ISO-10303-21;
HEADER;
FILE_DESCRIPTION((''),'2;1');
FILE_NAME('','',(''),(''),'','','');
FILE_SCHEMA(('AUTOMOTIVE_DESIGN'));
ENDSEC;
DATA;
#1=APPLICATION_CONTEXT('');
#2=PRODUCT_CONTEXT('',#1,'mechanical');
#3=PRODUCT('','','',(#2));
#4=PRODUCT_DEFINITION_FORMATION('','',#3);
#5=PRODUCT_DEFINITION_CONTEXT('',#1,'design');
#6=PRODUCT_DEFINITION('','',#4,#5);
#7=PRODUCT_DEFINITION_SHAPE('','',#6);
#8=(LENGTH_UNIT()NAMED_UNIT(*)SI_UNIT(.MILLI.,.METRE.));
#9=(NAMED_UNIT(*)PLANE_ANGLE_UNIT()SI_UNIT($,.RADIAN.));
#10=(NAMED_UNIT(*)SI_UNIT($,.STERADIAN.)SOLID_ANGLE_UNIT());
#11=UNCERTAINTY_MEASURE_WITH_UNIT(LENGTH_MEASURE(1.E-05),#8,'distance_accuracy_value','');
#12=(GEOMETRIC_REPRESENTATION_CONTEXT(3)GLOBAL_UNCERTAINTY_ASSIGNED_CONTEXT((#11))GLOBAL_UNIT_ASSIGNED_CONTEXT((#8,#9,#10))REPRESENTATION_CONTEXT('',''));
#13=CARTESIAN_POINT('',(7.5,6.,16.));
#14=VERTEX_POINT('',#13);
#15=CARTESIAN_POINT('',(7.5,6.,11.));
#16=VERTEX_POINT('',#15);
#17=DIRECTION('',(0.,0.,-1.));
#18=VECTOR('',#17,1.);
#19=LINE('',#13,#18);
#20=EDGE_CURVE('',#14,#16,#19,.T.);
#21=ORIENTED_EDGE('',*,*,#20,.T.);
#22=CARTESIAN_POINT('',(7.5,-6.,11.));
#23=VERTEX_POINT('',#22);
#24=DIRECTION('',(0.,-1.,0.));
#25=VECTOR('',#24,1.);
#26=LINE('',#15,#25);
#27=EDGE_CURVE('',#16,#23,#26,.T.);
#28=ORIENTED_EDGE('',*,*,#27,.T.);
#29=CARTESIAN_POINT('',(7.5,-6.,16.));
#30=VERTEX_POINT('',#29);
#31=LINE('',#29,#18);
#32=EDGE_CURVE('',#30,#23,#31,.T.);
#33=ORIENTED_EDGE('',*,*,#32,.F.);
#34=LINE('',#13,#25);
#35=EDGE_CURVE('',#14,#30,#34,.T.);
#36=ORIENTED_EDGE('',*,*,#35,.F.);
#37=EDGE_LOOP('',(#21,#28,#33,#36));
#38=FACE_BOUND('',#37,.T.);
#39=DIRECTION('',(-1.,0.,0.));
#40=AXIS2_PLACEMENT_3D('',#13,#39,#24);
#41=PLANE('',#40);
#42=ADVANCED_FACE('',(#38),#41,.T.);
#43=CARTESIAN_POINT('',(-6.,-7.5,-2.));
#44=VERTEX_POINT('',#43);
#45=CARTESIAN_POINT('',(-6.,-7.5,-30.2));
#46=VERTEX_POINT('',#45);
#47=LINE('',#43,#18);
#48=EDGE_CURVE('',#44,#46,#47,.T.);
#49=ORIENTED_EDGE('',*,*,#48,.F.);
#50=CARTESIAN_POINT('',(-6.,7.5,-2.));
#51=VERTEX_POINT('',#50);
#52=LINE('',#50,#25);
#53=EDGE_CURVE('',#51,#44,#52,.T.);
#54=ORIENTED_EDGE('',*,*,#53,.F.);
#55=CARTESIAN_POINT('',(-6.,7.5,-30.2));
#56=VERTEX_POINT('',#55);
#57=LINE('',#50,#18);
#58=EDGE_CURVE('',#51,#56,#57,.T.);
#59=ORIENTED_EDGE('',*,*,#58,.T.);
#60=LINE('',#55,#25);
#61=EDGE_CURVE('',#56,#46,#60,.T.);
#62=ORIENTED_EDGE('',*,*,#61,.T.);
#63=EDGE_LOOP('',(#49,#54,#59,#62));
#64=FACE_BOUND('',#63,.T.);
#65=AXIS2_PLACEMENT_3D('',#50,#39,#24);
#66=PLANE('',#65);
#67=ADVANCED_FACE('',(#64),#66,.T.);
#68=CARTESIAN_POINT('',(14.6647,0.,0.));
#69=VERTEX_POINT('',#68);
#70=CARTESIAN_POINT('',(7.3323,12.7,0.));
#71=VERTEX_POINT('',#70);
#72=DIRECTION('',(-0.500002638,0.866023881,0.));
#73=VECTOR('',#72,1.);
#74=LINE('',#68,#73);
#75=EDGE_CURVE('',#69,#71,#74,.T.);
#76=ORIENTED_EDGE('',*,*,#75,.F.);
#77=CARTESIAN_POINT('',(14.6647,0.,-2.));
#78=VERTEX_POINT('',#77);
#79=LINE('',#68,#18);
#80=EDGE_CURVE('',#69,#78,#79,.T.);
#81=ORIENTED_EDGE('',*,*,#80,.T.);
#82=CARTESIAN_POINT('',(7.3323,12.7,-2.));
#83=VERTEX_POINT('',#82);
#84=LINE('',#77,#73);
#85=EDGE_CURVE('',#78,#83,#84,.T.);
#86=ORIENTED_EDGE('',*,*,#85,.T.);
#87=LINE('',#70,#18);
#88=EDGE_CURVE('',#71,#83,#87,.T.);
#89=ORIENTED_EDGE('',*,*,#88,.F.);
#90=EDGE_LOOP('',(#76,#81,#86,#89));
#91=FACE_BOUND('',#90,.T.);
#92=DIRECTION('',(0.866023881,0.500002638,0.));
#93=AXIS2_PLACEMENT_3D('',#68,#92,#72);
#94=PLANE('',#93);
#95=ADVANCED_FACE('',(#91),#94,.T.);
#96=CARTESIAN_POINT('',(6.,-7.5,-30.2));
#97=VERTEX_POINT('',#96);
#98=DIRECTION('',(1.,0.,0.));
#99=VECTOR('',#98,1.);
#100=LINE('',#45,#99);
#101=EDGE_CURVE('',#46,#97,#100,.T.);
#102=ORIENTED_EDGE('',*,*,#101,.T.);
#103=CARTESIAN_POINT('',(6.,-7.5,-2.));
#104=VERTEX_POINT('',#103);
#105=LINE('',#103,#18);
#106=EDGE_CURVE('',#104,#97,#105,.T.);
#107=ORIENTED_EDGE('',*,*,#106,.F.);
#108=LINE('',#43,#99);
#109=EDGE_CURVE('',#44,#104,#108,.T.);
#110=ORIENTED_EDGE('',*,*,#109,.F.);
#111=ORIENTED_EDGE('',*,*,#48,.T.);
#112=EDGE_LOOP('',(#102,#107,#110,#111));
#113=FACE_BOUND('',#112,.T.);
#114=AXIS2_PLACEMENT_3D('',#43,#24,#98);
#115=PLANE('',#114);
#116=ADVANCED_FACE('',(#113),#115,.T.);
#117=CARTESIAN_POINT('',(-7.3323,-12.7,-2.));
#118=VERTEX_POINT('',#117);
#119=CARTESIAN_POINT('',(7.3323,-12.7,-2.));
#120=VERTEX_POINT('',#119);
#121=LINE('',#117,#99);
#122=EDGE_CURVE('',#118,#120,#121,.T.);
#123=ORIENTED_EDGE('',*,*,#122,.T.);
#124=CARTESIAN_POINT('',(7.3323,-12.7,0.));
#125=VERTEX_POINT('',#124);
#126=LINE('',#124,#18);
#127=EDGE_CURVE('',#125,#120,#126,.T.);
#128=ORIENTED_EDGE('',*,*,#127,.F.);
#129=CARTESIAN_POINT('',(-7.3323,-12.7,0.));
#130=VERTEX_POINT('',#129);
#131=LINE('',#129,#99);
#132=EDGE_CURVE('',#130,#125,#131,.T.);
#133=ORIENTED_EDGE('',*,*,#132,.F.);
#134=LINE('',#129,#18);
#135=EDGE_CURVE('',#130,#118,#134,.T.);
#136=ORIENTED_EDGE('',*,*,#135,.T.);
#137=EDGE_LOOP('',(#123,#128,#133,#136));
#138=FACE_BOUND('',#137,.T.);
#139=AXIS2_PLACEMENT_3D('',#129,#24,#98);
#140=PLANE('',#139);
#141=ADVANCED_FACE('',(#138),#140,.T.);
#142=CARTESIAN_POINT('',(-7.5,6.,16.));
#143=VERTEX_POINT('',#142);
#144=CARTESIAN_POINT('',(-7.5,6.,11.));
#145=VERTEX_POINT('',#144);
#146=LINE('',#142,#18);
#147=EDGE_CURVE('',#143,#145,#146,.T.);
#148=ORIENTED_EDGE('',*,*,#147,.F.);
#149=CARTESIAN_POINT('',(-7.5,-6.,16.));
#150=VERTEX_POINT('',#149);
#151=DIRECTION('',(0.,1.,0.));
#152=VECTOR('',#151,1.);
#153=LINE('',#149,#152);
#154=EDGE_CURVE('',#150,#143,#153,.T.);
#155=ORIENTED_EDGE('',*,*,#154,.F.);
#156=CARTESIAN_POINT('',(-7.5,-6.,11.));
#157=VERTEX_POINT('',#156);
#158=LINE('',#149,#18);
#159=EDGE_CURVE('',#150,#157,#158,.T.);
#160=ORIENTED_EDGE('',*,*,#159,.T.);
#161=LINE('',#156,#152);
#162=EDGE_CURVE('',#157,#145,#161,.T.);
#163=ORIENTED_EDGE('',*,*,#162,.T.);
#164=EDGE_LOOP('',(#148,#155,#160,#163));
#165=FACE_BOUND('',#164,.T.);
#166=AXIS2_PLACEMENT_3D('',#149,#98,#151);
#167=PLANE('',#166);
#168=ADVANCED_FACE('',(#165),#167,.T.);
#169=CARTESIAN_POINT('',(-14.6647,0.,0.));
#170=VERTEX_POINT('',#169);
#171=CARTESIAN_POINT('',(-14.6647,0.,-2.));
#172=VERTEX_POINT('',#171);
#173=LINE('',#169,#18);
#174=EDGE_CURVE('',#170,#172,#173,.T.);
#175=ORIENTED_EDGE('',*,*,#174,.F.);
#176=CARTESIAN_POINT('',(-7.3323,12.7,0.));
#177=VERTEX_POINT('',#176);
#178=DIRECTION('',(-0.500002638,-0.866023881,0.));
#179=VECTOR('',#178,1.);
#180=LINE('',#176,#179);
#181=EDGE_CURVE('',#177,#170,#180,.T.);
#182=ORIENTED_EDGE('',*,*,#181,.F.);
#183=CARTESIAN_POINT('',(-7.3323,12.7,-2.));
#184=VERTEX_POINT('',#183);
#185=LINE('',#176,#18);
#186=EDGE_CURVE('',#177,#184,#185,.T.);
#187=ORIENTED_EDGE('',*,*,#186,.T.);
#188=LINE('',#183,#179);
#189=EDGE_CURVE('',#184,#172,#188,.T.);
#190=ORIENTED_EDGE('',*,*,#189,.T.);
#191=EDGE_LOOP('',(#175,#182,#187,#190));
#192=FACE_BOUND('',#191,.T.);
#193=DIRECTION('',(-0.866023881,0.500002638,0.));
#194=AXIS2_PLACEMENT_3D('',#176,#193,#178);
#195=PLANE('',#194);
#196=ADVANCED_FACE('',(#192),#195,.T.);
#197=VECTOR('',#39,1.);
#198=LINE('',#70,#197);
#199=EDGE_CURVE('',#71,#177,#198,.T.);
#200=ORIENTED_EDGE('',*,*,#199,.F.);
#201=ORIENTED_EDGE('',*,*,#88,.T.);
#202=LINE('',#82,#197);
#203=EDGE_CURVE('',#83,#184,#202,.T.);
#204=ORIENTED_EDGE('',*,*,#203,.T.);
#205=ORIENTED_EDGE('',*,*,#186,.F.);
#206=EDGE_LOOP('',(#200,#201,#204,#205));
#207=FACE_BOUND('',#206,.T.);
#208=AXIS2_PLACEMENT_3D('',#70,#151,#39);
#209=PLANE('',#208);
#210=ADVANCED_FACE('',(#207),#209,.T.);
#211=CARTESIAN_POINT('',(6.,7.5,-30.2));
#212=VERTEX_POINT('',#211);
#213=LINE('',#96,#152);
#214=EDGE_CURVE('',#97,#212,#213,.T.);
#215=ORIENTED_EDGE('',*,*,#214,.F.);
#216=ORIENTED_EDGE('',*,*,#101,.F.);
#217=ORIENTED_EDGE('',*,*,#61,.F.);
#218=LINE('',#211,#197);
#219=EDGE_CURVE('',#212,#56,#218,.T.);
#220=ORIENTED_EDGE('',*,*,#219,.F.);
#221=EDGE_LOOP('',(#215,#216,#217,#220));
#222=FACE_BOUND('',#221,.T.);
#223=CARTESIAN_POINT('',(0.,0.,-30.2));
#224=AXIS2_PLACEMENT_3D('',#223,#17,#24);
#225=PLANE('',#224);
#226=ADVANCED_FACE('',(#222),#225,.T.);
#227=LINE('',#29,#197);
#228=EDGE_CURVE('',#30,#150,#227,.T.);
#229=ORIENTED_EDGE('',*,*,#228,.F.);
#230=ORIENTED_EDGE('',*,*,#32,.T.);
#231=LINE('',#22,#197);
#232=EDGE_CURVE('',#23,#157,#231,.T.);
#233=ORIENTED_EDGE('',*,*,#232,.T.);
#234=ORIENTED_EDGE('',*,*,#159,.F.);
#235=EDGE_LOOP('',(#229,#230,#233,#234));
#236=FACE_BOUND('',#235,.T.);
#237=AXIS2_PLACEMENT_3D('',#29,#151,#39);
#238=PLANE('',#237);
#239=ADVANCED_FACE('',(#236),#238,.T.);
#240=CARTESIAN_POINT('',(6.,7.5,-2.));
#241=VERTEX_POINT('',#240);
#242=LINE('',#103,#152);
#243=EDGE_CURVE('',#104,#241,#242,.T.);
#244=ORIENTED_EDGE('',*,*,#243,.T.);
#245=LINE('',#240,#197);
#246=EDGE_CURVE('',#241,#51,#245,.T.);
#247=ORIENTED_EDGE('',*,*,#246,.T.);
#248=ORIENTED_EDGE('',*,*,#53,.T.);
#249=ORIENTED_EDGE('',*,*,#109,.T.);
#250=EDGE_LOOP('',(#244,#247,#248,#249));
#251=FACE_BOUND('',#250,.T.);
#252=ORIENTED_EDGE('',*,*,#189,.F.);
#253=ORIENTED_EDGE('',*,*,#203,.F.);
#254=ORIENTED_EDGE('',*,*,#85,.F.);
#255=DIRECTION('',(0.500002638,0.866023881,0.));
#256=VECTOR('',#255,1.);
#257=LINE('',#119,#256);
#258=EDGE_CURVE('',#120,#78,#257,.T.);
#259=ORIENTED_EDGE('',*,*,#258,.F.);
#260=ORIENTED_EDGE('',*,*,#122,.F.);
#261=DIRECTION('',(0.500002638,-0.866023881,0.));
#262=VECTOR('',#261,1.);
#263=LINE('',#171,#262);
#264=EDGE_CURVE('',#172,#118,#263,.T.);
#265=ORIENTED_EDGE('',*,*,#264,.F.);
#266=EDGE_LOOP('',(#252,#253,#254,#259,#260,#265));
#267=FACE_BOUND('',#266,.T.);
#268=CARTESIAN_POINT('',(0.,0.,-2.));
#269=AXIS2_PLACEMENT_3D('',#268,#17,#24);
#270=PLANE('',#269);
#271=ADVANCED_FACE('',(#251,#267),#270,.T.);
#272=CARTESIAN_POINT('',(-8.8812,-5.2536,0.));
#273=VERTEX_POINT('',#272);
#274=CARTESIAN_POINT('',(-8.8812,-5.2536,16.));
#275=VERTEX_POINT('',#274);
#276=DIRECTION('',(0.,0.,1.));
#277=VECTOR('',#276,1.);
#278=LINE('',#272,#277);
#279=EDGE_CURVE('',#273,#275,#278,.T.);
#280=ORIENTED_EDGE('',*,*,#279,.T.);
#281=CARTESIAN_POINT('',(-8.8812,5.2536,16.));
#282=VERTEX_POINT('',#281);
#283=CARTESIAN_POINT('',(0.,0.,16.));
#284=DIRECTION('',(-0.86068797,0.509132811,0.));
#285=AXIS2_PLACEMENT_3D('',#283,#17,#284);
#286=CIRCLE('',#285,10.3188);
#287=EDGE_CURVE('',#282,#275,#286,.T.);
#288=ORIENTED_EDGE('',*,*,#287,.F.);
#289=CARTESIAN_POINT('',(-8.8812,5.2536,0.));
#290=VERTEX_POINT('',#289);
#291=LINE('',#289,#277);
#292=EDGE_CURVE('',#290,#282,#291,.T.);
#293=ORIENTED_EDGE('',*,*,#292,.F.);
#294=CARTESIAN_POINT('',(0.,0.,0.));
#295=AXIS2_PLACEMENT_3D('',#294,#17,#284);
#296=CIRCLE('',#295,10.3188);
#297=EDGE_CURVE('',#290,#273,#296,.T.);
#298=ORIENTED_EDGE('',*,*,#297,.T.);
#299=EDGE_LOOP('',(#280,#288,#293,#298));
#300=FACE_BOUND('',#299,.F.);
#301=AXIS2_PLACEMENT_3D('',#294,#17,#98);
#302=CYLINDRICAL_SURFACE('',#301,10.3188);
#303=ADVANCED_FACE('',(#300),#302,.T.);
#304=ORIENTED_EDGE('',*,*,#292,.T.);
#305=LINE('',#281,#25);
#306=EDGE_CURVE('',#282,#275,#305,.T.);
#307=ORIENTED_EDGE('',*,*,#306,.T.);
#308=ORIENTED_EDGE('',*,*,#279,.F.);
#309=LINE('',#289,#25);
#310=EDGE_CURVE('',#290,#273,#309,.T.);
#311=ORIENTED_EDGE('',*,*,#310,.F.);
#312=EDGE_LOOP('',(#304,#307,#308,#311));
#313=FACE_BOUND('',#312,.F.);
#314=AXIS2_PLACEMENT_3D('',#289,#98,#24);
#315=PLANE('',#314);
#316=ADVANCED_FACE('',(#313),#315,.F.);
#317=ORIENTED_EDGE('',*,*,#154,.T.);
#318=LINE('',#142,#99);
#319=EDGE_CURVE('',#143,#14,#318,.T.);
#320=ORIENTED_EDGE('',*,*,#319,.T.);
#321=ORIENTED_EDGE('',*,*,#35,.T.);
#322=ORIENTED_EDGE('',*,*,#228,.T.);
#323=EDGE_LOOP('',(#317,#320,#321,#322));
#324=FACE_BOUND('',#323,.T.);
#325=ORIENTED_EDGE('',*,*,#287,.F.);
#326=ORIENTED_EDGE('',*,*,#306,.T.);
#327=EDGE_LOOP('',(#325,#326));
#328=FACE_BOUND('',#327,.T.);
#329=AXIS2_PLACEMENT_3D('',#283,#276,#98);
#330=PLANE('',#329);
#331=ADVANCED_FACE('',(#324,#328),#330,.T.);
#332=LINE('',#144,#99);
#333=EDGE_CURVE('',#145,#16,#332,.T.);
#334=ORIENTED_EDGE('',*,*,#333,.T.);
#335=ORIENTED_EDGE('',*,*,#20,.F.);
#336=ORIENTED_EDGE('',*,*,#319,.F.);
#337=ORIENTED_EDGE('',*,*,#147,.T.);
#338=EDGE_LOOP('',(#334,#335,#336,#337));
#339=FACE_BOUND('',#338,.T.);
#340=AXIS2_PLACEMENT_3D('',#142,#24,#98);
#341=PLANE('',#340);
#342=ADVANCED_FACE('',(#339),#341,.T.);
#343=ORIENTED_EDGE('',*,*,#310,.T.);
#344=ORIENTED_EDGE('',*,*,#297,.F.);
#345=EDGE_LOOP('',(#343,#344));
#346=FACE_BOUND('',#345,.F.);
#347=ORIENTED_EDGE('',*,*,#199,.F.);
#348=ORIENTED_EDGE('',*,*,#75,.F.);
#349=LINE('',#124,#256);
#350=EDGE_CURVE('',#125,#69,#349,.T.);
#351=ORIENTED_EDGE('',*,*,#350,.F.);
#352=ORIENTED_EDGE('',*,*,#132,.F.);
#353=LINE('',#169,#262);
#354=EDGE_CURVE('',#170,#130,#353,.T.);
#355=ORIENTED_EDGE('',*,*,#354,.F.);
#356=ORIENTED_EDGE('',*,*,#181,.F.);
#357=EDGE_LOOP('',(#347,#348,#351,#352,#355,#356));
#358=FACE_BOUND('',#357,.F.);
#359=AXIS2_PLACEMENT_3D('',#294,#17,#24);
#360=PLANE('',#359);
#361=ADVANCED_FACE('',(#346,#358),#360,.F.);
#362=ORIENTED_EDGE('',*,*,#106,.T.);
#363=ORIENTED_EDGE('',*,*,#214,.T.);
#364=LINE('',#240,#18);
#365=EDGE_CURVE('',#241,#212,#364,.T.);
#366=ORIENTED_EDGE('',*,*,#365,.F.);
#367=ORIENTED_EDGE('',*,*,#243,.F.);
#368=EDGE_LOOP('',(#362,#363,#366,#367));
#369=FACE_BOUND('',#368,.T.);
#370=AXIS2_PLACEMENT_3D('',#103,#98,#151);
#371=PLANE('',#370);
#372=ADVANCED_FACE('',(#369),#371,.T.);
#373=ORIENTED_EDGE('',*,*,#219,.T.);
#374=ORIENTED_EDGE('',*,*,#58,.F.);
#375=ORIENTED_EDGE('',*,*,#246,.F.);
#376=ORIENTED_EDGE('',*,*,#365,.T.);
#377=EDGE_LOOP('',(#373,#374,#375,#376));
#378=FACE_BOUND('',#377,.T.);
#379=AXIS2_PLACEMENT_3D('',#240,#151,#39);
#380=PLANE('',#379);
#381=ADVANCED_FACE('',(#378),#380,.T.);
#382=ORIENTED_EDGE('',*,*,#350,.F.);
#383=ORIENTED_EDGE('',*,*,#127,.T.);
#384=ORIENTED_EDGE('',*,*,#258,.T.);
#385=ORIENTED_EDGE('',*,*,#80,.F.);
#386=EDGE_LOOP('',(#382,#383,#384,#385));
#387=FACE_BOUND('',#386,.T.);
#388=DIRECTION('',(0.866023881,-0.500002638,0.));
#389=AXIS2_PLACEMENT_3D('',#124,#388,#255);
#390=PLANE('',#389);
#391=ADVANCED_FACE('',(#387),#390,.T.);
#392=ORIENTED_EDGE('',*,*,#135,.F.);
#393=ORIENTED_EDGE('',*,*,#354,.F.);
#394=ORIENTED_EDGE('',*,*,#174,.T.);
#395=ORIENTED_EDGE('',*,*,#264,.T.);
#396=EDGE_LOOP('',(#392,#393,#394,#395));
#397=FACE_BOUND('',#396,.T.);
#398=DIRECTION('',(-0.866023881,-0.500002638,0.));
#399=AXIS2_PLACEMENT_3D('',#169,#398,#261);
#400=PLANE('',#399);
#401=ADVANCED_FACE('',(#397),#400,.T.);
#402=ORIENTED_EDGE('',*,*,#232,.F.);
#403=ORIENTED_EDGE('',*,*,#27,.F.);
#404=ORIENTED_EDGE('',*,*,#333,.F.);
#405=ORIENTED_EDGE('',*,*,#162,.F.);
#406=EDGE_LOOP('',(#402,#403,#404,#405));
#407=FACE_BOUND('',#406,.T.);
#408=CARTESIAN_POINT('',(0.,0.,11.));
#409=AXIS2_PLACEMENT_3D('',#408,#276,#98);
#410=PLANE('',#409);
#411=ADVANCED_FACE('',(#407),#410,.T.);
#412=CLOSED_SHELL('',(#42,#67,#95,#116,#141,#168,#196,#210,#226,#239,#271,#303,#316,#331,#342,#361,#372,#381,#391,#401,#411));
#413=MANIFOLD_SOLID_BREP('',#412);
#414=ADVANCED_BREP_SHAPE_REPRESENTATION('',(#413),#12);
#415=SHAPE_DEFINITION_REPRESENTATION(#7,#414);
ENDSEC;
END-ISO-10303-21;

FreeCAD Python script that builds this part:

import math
import FreeCAD as App
import Part
import Sketcher
from FreeCAD import Vector
Q = App.Units.Quantity

doc = App.newDocument("Part")
params = doc.addObject("Spreadsheet::Sheet", "Params")
for row, (alias, value) in enumerate([
    ("pad1_length", "16 mm"),
    ("pad2_length", "2 mm"),
    ("sketch3_width", "12 mm"),
    ("sketch3_height", "15 mm"),
    ("pad3_length", "28.2 mm"),
    ("sketch4_width", "15 mm"),
    ("sketch4_height", "12 mm"),
    ("pocket1_length", "5 mm"),
], start=1):
    params.set(f"A{row}", alias)
    params.set(f"B{row}", "=" + value)
    params.setAlias(f"B{row}", alias)

body = doc.addObject("PartDesign::Body", "Body")

# Sketch on XY plane
sketch1 = body.newObject("Sketcher::SketchObject", "Sketch")
sketch1.AttachmentSupport = (doc.getObject("XY_Plane"), [""])
sketch1.MapMode = "FlatFace"
sketch1.addGeometry([
    Part.ArcOfCircle(Part.Circle(Vector(0, 0, 0), Vector(0, 0, 1), 10.3188), math.radians(-149.393916), math.radians(149.393916)),
    Part.LineSegment(Vector(-8.8812, -5.2536, 0), Vector(-8.8812, 5.2536, 0)),
], False)
sketch1.addConstraint([
    Sketcher.Constraint("Coincident", 0, 1, 1, 1),
    Sketcher.Constraint("Coincident", 1, 2, 0, 2),
    Sketcher.Constraint("Vertical", 1),
    Sketcher.Constraint("Coincident", 0, 3, -1, 1),
    Sketcher.Constraint("Radius", 0, 10.3188),
    Sketcher.Constraint("DistanceY", 1, 1, 1, 2, 10.5072),
])
pad1 = body.newObject("PartDesign::Pad", "Pad")
pad1.Profile = sketch1
pad1.setExpression("Length", "Params.pad1_length")

# Sketch on XY plane
sketch2 = body.newObject("Sketcher::SketchObject", "Sketch001")
sketch2.AttachmentSupport = (doc.getObject("XY_Plane"), [""])
sketch2.MapMode = "FlatFace"
sketch2.addGeometry([
    Part.LineSegment(Vector(-7.3323, -12.7, 0), Vector(-14.6647, 0, 0)),  # 0
    Part.LineSegment(Vector(-14.6647, 0, 0), Vector(-7.3323, 12.7, 0)),  # 1
    Part.LineSegment(Vector(-7.3323, 12.7, 0), Vector(7.3323, 12.7, 0)),  # 2
    Part.LineSegment(Vector(7.3323, 12.7, 0), Vector(14.6647, 0, 0)),  # 3
    Part.LineSegment(Vector(14.6647, 0, 0), Vector(7.3323, -12.7, 0)),  # 4
    Part.LineSegment(Vector(7.3323, -12.7, 0), Vector(-7.3323, -12.7, 0)),  # 5
], False)
sketch2.addConstraint([
    Sketcher.Constraint("Coincident", 0, 2, 1, 1),
    Sketcher.Constraint("Coincident", 1, 2, 2, 1),
    Sketcher.Constraint("Coincident", 2, 2, 3, 1),
    Sketcher.Constraint("Coincident", 3, 2, 4, 1),
    Sketcher.Constraint("Coincident", 4, 2, 5, 1),
    Sketcher.Constraint("Coincident", 5, 2, 0, 1),
    Sketcher.Constraint("Horizontal", 2),
    Sketcher.Constraint("Horizontal", 5),
    Sketcher.Constraint("Symmetric", 0, 2, 3, 2, -1, 1),
    Sketcher.Constraint("Symmetric", 1, 2, 4, 2, -1, 1),
    Sketcher.Constraint("PointOnObject", 0, 2, -1),
    Sketcher.Constraint("Parallel", 0, 3),
    Sketcher.Constraint("Vertical", 2, 2, 4, 2),
    Sketcher.Constraint("DistanceY", 4, 2, 2, 2, 25.4),
    Sketcher.Constraint("Angle", 0, Q("120.0002 deg")),
    Sketcher.Constraint("DistanceX", 2, 1, 2, 2, 14.6646),
])
pad2 = body.newObject("PartDesign::Pad", "Pad001")
pad2.Profile = sketch2
pad2.setExpression("Length", "Params.pad2_length")
pad2.Reversed = True

# Sketch on XY plane
sketch3 = body.newObject("Sketcher::SketchObject", "Sketch002")
sketch3.AttachmentSupport = (doc.getObject("XY_Plane"), [""])
sketch3.MapMode = "FlatFace"
sketch3.AttachmentOffset = App.Placement(Vector(0, 0, -2), App.Rotation())
sketch3.addGeometry([
    Part.LineSegment(Vector(-6, -7.5, 0), Vector(-6, 7.5, 0)),
    Part.LineSegment(Vector(-6, 7.5, 0), Vector(6, 7.5, 0)),
    Part.LineSegment(Vector(6, 7.5, 0), Vector(6, -7.5, 0)),
    Part.LineSegment(Vector(6, -7.5, 0), Vector(-6, -7.5, 0)),
], False)
sketch3.addConstraint([
    Sketcher.Constraint("Coincident", 0, 2, 1, 1),
    Sketcher.Constraint("Coincident", 1, 2, 2, 1),
    Sketcher.Constraint("Coincident", 2, 2, 3, 1),
    Sketcher.Constraint("Coincident", 3, 2, 0, 1),
    Sketcher.Constraint("Vertical", 0),
    Sketcher.Constraint("Horizontal", 1),
    Sketcher.Constraint("Vertical", 2),
    Sketcher.Constraint("Horizontal", 3),
    Sketcher.Constraint("Symmetric", 0, 2, 2, 2, -1, 1),
    Sketcher.Constraint("DistanceX", 1, 1, 1, 2, 12.0),
    Sketcher.Constraint("DistanceY", 0, 1, 0, 2, 15.0),
])
sketch3.setExpression("Constraints[9]", "Params.sketch3_width")
sketch3.setExpression("Constraints[10]", "Params.sketch3_height")
pad3 = body.newObject("PartDesign::Pad", "Pad002")
pad3.Profile = sketch3
pad3.setExpression("Length", "Params.pad3_length")
pad3.Reversed = True

# Sketch on XY plane
sketch4 = body.newObject("Sketcher::SketchObject", "Sketch003")
sketch4.AttachmentSupport = (doc.getObject("XY_Plane"), [""])
sketch4.MapMode = "FlatFace"
sketch4.AttachmentOffset = App.Placement(Vector(0, 0, 16), App.Rotation())
sketch4.addGeometry([
    Part.LineSegment(Vector(7.5, 6, 0), Vector(-7.5, 6, 0)),
    Part.LineSegment(Vector(-7.5, 6, 0), Vector(-7.5, -6, 0)),
    Part.LineSegment(Vector(-7.5, -6, 0), Vector(7.5, -6, 0)),
    Part.LineSegment(Vector(7.5, -6, 0), Vector(7.5, 6, 0)),
], False)
sketch4.addConstraint([
    Sketcher.Constraint("Coincident", 0, 2, 1, 1),
    Sketcher.Constraint("Coincident", 1, 2, 2, 1),
    Sketcher.Constraint("Coincident", 2, 2, 3, 1),
    Sketcher.Constraint("Coincident", 3, 2, 0, 1),
    Sketcher.Constraint("Horizontal", 0),
    Sketcher.Constraint("Vertical", 1),
    Sketcher.Constraint("Horizontal", 2),
    Sketcher.Constraint("Vertical", 3),
    Sketcher.Constraint("Symmetric", 0, 2, 2, 2, -1, 1),
    Sketcher.Constraint("DistanceX", 0, 2, 0, 1, 15.0),
    Sketcher.Constraint("DistanceY", 1, 2, 1, 1, 12.0),
])
sketch4.setExpression("Constraints[9]", "Params.sketch4_width")
sketch4.setExpression("Constraints[10]", "Params.sketch4_height")
pocket1 = body.newObject("PartDesign::Pocket", "Pocket")
pocket1.Profile = sketch4
pocket1.setExpression("Length", "Params.pocket1_length")

doc.recompute()
